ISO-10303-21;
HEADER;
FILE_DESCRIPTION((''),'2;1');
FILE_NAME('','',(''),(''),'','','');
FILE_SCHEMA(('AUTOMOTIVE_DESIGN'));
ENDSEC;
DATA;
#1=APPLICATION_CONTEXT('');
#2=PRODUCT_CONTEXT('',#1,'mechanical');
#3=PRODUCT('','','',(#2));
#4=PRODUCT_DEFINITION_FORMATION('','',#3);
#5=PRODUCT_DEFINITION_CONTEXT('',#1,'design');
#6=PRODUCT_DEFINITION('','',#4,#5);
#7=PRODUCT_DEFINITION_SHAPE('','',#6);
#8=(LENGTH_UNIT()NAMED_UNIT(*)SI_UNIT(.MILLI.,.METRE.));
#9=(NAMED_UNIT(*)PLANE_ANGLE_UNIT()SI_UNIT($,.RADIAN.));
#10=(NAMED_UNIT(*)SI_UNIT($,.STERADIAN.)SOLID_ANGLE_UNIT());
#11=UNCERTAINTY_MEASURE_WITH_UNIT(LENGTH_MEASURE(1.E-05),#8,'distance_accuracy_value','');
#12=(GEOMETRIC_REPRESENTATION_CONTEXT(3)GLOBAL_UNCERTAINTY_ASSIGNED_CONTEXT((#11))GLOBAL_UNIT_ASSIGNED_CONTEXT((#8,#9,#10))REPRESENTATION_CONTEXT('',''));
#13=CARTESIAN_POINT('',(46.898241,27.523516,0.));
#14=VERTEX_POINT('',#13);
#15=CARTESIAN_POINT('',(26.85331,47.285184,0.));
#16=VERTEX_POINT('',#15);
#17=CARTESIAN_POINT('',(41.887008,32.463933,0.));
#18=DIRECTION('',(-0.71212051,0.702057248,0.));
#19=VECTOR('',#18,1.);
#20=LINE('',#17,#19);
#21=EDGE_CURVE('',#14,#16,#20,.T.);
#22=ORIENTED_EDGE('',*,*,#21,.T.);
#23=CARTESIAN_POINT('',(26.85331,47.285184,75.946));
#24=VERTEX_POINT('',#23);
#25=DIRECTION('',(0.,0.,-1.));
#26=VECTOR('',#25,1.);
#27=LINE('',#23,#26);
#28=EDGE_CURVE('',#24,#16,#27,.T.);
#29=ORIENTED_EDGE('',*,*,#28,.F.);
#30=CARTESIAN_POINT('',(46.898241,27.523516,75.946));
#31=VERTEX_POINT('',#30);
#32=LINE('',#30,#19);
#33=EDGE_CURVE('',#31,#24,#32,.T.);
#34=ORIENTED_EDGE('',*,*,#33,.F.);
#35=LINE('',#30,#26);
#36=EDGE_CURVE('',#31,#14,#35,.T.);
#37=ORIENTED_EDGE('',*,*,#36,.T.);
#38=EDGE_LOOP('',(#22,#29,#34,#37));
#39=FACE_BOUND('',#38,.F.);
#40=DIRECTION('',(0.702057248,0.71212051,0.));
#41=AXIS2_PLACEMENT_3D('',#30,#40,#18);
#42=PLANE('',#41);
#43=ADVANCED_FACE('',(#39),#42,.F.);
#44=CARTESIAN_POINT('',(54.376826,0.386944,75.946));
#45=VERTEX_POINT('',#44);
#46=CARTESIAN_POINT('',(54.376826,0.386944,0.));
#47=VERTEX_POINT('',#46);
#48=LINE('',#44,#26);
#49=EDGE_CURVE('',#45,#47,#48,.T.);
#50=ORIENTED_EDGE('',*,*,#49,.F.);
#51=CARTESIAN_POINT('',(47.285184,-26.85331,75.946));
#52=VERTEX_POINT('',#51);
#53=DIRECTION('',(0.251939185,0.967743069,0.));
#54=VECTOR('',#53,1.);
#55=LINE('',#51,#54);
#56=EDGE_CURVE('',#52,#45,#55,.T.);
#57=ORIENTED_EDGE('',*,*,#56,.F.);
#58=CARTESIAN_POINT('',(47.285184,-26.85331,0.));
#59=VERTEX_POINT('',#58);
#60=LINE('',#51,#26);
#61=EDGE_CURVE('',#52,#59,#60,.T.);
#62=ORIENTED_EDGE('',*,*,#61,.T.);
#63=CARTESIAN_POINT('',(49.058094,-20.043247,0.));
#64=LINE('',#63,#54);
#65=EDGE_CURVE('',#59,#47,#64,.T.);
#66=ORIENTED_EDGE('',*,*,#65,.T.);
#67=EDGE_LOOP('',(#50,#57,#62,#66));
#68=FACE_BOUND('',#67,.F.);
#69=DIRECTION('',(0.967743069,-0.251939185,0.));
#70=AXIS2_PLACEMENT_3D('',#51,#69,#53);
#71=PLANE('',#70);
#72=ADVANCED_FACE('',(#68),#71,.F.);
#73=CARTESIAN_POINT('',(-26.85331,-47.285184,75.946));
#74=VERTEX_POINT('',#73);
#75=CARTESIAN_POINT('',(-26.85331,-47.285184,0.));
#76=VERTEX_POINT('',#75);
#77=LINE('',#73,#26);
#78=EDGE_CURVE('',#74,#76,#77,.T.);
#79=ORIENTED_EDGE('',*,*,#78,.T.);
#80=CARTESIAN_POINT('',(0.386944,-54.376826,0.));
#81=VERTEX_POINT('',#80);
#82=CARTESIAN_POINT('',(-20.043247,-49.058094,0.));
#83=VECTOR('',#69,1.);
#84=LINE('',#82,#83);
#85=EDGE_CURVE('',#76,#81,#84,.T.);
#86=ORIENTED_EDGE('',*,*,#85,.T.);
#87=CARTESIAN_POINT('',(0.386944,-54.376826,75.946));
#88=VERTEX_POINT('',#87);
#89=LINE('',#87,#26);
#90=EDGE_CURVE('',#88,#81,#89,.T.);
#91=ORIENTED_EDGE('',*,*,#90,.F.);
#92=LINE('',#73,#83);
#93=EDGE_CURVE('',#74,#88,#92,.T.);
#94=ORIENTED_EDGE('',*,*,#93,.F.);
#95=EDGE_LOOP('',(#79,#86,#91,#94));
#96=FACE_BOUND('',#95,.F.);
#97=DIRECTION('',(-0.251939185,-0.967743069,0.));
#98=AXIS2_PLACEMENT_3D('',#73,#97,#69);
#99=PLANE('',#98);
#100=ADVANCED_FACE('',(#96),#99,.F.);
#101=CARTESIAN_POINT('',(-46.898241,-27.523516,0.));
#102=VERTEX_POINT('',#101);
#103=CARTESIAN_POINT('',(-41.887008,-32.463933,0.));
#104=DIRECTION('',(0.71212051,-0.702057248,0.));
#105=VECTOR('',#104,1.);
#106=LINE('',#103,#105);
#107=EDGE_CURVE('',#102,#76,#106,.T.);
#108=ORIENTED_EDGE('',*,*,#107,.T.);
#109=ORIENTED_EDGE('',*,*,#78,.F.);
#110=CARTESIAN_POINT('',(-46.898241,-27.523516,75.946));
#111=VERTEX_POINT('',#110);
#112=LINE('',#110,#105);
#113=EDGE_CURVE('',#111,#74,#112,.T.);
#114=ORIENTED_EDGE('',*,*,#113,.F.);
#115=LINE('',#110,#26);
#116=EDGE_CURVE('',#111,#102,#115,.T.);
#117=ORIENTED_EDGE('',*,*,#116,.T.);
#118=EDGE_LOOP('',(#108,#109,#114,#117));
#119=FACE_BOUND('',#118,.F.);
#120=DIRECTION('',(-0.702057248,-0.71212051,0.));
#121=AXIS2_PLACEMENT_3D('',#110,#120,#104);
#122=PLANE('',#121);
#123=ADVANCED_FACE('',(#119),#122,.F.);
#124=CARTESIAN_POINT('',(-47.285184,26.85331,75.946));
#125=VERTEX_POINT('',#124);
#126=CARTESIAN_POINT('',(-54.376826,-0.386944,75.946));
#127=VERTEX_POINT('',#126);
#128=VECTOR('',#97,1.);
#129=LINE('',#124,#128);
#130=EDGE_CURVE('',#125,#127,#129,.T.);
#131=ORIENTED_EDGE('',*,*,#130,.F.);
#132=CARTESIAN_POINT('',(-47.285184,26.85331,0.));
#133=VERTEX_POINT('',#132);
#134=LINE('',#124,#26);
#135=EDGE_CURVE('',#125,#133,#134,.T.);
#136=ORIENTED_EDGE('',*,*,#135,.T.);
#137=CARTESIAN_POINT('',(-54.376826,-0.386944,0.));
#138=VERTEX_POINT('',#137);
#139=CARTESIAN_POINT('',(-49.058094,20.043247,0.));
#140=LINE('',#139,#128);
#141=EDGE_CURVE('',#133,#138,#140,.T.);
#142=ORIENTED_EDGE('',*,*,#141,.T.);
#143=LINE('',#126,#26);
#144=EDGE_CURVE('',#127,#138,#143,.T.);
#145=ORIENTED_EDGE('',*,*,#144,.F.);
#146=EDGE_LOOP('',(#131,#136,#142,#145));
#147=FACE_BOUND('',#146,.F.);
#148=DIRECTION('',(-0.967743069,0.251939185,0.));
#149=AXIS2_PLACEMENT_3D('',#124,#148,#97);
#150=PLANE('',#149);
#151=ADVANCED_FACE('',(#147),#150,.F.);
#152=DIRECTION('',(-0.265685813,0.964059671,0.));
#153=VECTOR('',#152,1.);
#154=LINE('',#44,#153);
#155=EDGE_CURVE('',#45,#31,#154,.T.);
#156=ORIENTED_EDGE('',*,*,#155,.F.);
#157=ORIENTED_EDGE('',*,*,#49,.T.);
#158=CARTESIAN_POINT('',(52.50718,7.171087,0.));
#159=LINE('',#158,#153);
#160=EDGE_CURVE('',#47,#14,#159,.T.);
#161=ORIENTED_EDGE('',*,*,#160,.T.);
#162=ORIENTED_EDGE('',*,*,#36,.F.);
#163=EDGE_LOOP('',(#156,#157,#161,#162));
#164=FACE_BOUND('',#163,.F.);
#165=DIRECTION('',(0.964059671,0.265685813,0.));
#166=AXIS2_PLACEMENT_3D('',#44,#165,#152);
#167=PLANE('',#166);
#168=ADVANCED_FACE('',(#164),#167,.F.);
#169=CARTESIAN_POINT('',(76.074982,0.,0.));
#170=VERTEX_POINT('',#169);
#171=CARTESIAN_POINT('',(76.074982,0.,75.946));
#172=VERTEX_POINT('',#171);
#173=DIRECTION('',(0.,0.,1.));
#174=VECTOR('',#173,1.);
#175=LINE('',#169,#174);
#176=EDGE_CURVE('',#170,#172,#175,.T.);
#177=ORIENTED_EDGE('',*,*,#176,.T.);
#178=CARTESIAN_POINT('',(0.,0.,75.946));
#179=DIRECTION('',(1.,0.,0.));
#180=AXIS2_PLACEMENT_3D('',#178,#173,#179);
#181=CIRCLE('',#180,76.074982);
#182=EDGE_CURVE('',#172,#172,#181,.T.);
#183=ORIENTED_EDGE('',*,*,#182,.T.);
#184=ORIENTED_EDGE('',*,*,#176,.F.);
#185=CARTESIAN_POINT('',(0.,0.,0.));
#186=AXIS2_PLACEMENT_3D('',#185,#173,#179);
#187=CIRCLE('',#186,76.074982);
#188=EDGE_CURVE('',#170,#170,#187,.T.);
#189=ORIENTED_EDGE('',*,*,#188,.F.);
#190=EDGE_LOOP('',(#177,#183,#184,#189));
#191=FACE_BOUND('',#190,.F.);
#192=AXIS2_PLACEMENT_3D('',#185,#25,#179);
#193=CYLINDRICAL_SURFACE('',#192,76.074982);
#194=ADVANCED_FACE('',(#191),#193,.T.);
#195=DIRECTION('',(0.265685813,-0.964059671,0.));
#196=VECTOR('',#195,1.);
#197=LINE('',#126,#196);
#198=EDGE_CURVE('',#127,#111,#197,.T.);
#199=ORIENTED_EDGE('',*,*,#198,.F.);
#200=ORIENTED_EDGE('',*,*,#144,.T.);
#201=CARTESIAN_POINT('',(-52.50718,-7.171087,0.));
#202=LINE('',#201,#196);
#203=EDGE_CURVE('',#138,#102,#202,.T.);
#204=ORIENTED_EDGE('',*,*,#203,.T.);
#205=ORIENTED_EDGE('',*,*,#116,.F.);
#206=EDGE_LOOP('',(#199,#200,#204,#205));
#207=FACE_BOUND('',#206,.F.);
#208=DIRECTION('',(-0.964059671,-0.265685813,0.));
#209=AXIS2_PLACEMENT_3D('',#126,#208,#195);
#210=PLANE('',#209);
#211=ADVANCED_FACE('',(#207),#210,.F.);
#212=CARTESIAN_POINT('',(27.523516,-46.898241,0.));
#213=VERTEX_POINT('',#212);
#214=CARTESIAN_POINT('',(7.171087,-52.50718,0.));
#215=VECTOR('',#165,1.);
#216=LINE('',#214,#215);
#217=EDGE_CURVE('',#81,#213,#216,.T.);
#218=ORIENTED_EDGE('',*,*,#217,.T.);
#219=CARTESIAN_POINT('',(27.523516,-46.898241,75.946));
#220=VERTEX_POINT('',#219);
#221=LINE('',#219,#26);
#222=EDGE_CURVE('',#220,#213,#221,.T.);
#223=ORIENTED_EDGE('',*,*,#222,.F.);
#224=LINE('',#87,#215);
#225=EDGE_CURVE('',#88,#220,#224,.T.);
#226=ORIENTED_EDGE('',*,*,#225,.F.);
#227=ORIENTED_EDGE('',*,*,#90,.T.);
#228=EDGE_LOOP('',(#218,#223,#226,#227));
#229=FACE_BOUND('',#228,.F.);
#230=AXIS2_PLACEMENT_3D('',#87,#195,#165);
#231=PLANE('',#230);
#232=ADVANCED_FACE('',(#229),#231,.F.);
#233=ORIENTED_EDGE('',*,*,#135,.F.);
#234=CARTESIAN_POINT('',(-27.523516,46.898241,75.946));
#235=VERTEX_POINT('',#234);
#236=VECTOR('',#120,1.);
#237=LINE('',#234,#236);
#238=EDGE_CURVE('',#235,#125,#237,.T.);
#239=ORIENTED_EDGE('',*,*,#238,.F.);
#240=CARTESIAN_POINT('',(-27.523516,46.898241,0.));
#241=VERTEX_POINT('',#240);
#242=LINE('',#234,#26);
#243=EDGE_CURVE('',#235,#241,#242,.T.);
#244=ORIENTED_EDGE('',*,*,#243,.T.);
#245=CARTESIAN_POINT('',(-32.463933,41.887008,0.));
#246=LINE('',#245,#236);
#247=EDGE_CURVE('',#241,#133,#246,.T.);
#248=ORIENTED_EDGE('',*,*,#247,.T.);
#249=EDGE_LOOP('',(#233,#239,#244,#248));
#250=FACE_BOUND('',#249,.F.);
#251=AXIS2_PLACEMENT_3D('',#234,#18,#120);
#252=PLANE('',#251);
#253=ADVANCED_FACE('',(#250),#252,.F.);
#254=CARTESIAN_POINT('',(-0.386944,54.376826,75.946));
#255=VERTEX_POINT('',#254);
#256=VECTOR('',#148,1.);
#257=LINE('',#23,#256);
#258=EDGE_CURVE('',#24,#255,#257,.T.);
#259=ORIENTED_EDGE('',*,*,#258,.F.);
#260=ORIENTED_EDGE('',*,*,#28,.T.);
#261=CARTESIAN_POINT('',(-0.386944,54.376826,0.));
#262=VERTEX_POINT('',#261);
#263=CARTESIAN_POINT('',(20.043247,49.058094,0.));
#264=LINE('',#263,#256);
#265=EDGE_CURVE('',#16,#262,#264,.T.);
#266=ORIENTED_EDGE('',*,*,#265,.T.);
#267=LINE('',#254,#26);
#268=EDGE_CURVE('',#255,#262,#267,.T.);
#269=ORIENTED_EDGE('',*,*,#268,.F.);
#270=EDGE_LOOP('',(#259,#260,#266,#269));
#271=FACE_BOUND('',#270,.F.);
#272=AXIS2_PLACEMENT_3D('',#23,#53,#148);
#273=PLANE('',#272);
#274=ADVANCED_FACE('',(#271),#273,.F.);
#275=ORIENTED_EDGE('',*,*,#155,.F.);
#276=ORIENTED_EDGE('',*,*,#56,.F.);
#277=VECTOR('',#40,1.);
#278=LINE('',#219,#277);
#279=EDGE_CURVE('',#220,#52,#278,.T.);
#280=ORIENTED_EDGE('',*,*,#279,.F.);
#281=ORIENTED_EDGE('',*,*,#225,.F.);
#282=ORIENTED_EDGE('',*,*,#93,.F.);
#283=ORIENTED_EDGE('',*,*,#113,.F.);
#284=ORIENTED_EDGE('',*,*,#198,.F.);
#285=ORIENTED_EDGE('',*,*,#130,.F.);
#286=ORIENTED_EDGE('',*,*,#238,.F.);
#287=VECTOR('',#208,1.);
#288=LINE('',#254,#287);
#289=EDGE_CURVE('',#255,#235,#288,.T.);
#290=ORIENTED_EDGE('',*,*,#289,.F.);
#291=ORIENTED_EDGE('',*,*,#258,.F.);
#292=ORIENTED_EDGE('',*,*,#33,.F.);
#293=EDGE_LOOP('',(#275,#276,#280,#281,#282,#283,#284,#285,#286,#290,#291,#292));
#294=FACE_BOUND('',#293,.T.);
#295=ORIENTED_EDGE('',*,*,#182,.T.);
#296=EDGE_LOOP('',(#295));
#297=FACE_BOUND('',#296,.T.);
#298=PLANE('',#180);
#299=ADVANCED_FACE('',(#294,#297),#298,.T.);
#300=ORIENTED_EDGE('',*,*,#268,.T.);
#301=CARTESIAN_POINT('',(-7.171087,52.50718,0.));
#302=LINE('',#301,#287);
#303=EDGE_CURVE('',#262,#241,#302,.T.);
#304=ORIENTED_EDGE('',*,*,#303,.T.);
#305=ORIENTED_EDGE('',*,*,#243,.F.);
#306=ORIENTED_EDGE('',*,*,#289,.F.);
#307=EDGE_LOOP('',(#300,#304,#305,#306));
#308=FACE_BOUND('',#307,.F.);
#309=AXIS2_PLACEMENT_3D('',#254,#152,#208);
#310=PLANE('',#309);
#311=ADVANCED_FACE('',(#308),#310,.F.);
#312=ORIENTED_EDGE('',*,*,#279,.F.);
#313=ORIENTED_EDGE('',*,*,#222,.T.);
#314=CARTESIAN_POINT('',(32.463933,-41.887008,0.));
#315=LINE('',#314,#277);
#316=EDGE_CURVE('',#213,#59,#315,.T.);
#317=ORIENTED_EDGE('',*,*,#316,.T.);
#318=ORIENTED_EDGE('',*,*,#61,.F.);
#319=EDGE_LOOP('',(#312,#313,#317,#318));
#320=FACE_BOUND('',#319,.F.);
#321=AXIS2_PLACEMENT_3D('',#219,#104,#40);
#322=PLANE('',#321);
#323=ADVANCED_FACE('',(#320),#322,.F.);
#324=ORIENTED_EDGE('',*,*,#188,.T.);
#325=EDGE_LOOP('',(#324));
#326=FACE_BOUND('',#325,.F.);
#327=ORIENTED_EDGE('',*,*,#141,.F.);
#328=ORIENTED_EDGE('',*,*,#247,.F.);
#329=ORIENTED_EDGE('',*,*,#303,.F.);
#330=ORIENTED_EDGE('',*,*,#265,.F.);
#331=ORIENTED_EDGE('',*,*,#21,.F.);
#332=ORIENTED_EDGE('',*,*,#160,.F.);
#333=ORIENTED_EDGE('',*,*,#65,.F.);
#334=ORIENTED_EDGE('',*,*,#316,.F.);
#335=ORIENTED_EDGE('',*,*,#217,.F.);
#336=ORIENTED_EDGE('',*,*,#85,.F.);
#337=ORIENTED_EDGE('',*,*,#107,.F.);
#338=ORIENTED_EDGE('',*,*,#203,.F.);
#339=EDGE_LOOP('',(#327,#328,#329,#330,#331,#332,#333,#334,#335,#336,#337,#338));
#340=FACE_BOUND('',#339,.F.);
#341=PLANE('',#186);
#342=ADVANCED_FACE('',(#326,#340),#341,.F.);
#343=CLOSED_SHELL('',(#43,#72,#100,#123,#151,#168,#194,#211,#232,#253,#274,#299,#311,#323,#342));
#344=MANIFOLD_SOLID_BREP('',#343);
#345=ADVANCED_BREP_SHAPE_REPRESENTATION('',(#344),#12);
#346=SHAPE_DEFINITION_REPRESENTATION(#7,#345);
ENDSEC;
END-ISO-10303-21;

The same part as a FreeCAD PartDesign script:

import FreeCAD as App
import Part
import Sketcher
from FreeCAD import Vector
Q = App.Units.Quantity


def add_polygon(sketch, points):
    """Adds a closed chain of lines whose ends are joined by coincident constraints."""
    first, n = sketch.GeometryCount, len(points)
    for a, b in zip(points, points[1:] + points[:1]):
        sketch.addGeometry(Part.LineSegment(App.Vector(*a, 0), App.Vector(*b, 0)), False)
    for i in range(n):
        sketch.addConstraint(Sketcher.Constraint("Coincident", first + i, 2, first + (i + 1) % n, 1))

doc = App.newDocument("Part")
body = doc.addObject("PartDesign::Body", "Body")

# Sketch on XY plane
sketch1 = body.newObject("Sketcher::SketchObject", "Sketch")
sketch1.AttachmentSupport = (doc.getObject("XY_Plane"), [""])
sketch1.MapMode = "FlatFace"
sketch1.addGeometry(Part.Circle(Vector(0, 0, 0), Vector(0, 0, 1), 76), False)
sketch1.addConstraint([
    Sketcher.Constraint("Coincident", 0, 3, -1, 1),
    Sketcher.Constraint("Diameter", 0, 152.149964),
])
pad1 = body.newObject("PartDesign::Pad", "Pad")
pad1.Profile = sketch1
pad1.Length = Q("2.99 in")

# Sketch on XY plane
sketch2 = body.newObject("Sketcher::SketchObject", "Sketch001")
sketch2.AttachmentSupport = (doc.getObject("XY_Plane"), [""])
sketch2.MapMode = "FlatFace"
sketch2.AttachmentOffset = App.Placement(Vector(0, 0, 2.99 * 25.4), App.Rotation())
add_polygon(sketch2, [(28, -47), (47, -27), (54, 0), (47, 28), (27, 47), (0, 54), (-28, 47), (-47, 27), (-54, 0), (-47, -28), (-27, -47), (0, -54)])  # lines 0-11
sketch2.addConstraint([
    Sketcher.Constraint("Symmetric", 0, 2, 6, 2, -1, 1),
    Sketcher.Constraint("Symmetric", 1, 2, 7, 2, -1, 1),
    Sketcher.Constraint("Symmetric", 2, 2, 8, 2, -1, 1),
    Sketcher.Constraint("Symmetric", 3, 2, 9, 2, -1, 1),
    Sketcher.Constraint("Symmetric", 4, 2, 10, 2, -1, 1),
    Sketcher.Constraint("Symmetric", 5, 2, 11, 2, -1, 1),
    Sketcher.Constraint("Perpendicular", 0, 3),
    Sketcher.Constraint("Perpendicular", 1, 4),
    Sketcher.Constraint("Perpendicular", 2, 5),
    Sketcher.Constraint("Equal", 0, 1),
    Sketcher.Constraint("Equal", 1, 2),
    Sketcher.Constraint("Equal", 2, 3),
    Sketcher.Constraint("Equal", 3, 4),
    Sketcher.Constraint("Equal", 4, 5),
    Sketcher.Constraint("DistanceX", 5, 2, 0, 2, 74.8087),
    Sketcher.Constraint("Distance", 0, 28.148229),
    Sketcher.Constraint("DistanceY", 0, 2, -1, 1, 26.85331),
    Sketcher.Constraint("DistanceX", -1, 1, 2, 2, 46.898241),
])
pocket1 = body.newObject("PartDesign::Pocket", "Pocket")
pocket1.Profile = sketch2
pocket1.Length = Q("5.87 in")

doc.recompute()
